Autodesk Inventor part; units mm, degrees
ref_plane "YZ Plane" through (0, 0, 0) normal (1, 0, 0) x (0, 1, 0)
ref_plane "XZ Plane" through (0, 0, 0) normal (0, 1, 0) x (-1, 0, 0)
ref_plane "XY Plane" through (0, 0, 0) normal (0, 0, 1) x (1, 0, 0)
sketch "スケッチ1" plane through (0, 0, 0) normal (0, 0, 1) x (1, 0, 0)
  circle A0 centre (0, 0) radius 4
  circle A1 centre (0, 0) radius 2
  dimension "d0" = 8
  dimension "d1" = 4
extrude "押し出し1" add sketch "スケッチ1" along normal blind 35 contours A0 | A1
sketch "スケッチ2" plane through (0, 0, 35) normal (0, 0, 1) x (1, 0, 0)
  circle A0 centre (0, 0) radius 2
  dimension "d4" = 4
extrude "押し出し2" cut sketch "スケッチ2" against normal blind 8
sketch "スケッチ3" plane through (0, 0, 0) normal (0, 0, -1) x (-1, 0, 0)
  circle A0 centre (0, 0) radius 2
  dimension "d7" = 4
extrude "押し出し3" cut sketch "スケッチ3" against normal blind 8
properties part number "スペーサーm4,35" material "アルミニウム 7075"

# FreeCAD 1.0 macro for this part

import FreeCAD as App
import Part
import Sketcher

V = App.Vector

doc = App.newDocument("Part")
params = doc.addObject("Spreadsheet::Sheet", "Params")
for row, (alias, value) in enumerate([
    ("sketch1_diameter", "8 mm"),
    ("pad1_length", "35 mm"),
    ("sketch2_diameter", "4 mm"),
    ("pocket1_length", "8 mm"),
    ("sketch3_diameter", "4 mm"),
    ("pocket2_length", "8 mm"),
], start=1):
    params.set(f"A{row}", alias)
    params.set(f"B{row}", "=" + value)
    params.setAlias(f"B{row}", alias)

body = doc.addObject("PartDesign::Body", "Body")

# Sketch on XY plane
sketch1 = body.newObject("Sketcher::SketchObject", "Sketch")
sketch1.AttachmentSupport = (doc.getObject("XY_Plane"), [""])
sketch1.MapMode = "FlatFace"
sketch1.addGeometry(Part.Circle(V(0, 0, 0), V(0, 0, 1), 4), False)
sketch1.addConstraint(Sketcher.Constraint("Coincident", 0, 3, -1, 1))
sketch1.addConstraint(Sketcher.Constraint("Diameter", 0, 8.0))
sketch1.setExpression("Constraints[1]", "Params.sketch1_diameter")
pad1 = body.newObject("PartDesign::Pad", "Pad")
pad1.Profile = sketch1
pad1.setExpression("Length", "Params.pad1_length")

# Sketch on XY plane
sketch2 = body.newObject("Sketcher::SketchObject", "Sketch001")
sketch2.AttachmentSupport = (doc.getObject("XY_Plane"), [""])
sketch2.MapMode = "FlatFace"
sketch2.AttachmentOffset = App.Placement(V(0, 0, 35), App.Rotation())
sketch2.addGeometry(Part.Circle(V(0, 0, 0), V(0, 0, 1), 2), False)
sketch2.addConstraint(Sketcher.Constraint("Coincident", 0, 3, -1, 1))
sketch2.addConstraint(Sketcher.Constraint("Diameter", 0, 4.0))
sketch2.setExpression("Constraints[1]", "Params.sketch2_diameter")
pocket1 = body.newObject("PartDesign::Pocket", "Pocket")
pocket1.Profile = sketch2
pocket1.setExpression("Length", "Params.pocket1_length")

# Sketch on XY plane
sketch3 = body.newObject("Sketcher::SketchObject", "Sketch002")
sketch3.AttachmentSupport = (doc.getObject("XY_Plane"), [""])
sketch3.MapMode = "FlatFace"
sketch3.addGeometry(Part.Circle(V(0, 0, 0), V(0, 0, 1), 2), False)
sketch3.addConstraint(Sketcher.Constraint("Coincident", 0, 3, -1, 1))
sketch3.addConstraint(Sketcher.Constraint("Diameter", 0, 4.0))
sketch3.setExpression("Constraints[1]", "Params.sketch3_diameter")
pocket2 = body.newObject("PartDesign::Pocket", "Pocket001")
pocket2.Profile = sketch3
pocket2.setExpression("Length", "Params.pocket2_length")
pocket2.Reversed = True

doc.recompute()
